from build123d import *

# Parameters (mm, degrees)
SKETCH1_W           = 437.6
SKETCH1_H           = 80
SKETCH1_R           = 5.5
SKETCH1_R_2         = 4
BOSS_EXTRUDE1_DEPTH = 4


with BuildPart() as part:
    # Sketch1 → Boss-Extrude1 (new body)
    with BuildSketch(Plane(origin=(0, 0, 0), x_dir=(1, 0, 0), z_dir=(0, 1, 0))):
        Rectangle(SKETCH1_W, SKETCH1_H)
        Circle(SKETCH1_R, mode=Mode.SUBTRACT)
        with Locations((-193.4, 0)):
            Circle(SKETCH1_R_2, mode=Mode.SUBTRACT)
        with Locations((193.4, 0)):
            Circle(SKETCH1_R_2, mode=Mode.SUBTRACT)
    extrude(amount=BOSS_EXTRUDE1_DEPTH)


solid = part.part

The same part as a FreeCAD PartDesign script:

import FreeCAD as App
import Part
import Sketcher

V = App.Vector
Q = App.Units.Quantity

doc = App.newDocument("Part")
body = doc.addObject("PartDesign::Body", "Body")

sketch1 = doc.addObject("Sketcher::SketchObject", "Sketch")
body.addObject(sketch1)
sketch1.AttachmentSupport = (doc.XZ_Plane, [""])
sketch1.MapMode = "FlatFace"
sketch1.addGeometry(Part.LineSegment(V(-218.8, -40, 0), V(-218.8, 40, 0)), False)
sketch1.addGeometry(Part.LineSegment(V(-218.8, 40, 0), V(218.8, 40, 0)), False)
sketch1.addGeometry(Part.LineSegment(V(218.8, 40, 0), V(218.8, -40, 0)), False)
sketch1.addGeometry(Part.LineSegment(V(218.8, -40, 0), V(-218.8, -40, 0)), False)
sketch1.addGeometry(Part.Circle(V(-193.4, 0, 0), V(0, 0, 1), 4), False)
sketch1.addGeometry(Part.Circle(V(0, 0, 0), V(0, 0, 1), 5.5), False)
sketch1.addGeometry(Part.Circle(V(193.4, 0, 0), V(0, 0, 1), 4), False)
sketch1.addConstraint(Sketcher.Constraint("Coincident", 0, 2, 1, 1))
sketch1.addConstraint(Sketcher.Constraint("Coincident", 1, 2, 2, 1))
sketch1.addConstraint(Sketcher.Constraint("Coincident", 2, 2, 3, 1))
sketch1.addConstraint(Sketcher.Constraint("Coincident", 3, 2, 0, 1))
sketch1.addConstraint(Sketcher.Constraint("Vertical", 0))
sketch1.addConstraint(Sketcher.Constraint("Horizontal", 1))
sketch1.addConstraint(Sketcher.Constraint("Vertical", 2))
sketch1.addConstraint(Sketcher.Constraint("Horizontal", 3))
sketch1.addConstraint(Sketcher.Constraint("Coincident", 5, 3, -1, 1))
sketch1.addConstraint(Sketcher.Constraint("Equal", 4, 6))
sketch1.addConstraint(Sketcher.Constraint("Symmetric", 4, 3, 6, 3, -1, 1))
sketch1.addConstraint(Sketcher.Constraint("Symmetric", 0, 2, 2, 2, -1, 1))
sketch1.addConstraint(Sketcher.Constraint("PointOnObject", 4, 3, -1))
sketch1.addConstraint(Sketcher.Constraint("Diameter", 4, Q("8 mm")))
sketch1.addConstraint(Sketcher.Constraint("Diameter", 5, Q("11 mm")))
sketch1.addConstraint(Sketcher.Constraint("DistanceY", 0, 1, 0, 2, Q("80 mm")))
sketch1.addConstraint(Sketcher.Constraint("DistanceX", 1, 1, 1, 2, Q("437.6 mm")))
sketch1.addConstraint(Sketcher.Constraint("DistanceX", 4, 3, -1, 1, Q("193.4 mm")))
pad1 = doc.addObject("PartDesign::Pad", "Pad")
body.addObject(pad1)
pad1.Profile = sketch1
pad1.Length = 4
pad1.Reversed = True

doc.recompute()
